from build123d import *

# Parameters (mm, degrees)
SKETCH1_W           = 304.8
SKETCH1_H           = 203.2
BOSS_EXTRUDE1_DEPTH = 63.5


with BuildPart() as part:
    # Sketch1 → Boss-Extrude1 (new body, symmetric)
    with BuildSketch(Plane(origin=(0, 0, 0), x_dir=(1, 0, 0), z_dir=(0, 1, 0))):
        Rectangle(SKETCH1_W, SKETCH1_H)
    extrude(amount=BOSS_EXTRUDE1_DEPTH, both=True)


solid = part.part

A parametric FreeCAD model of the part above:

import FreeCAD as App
import Part
import Sketcher

V = App.Vector
Q = App.Units.Quantity

doc = App.newDocument("Part")
body = doc.addObject("PartDesign::Body", "Body")

sketch1 = body.newObject("Sketcher::SketchObject", "Sketch")
sketch1.AttachmentSupport = (doc.getObject("XZ_Plane"), [""])
sketch1.MapMode = "FlatFace"
sketch1.addGeometry(Part.LineSegment(V(-152.4, -101.6, 0), V(-152.4, 101.6, 0)), False)
sketch1.addGeometry(Part.LineSegment(V(-152.4, 101.6, 0), V(152.4, 101.6, 0)), False)
sketch1.addGeometry(Part.LineSegment(V(152.4, 101.6, 0), V(152.4, -101.6, 0)), False)
sketch1.addGeometry(Part.LineSegment(V(152.4, -101.6, 0), V(-152.4, -101.6, 0)), False)
sketch1.addConstraint(Sketcher.Constraint("Coincident", 0, 2, 1, 1))
sketch1.addConstraint(Sketcher.Constraint("Coincident", 1, 2, 2, 1))
sketch1.addConstraint(Sketcher.Constraint("Coincident", 2, 2, 3, 1))
sketch1.addConstraint(Sketcher.Constraint("Coincident", 3, 2, 0, 1))
sketch1.addConstraint(Sketcher.Constraint("Vertical", 0))
sketch1.addConstraint(Sketcher.Constraint("Horizontal", 1))
sketch1.addConstraint(Sketcher.Constraint("Vertical", 2))
sketch1.addConstraint(Sketcher.Constraint("Horizontal", 3))
sketch1.addConstraint(Sketcher.Constraint("Symmetric", 0, 2, 2, 2, -1, 1))
sketch1.addConstraint(Sketcher.Constraint("DistanceX", 1, 1, 1, 2, Q("12 in")))
sketch1.addConstraint(Sketcher.Constraint("DistanceY", 0, 1, 0, 2, Q("8 in")))
pad1 = body.newObject("PartDesign::Pad", "Pad")
pad1.Profile = sketch1
pad1.Length = Q("5 in")
pad1.Midplane = True

doc.recompute()
